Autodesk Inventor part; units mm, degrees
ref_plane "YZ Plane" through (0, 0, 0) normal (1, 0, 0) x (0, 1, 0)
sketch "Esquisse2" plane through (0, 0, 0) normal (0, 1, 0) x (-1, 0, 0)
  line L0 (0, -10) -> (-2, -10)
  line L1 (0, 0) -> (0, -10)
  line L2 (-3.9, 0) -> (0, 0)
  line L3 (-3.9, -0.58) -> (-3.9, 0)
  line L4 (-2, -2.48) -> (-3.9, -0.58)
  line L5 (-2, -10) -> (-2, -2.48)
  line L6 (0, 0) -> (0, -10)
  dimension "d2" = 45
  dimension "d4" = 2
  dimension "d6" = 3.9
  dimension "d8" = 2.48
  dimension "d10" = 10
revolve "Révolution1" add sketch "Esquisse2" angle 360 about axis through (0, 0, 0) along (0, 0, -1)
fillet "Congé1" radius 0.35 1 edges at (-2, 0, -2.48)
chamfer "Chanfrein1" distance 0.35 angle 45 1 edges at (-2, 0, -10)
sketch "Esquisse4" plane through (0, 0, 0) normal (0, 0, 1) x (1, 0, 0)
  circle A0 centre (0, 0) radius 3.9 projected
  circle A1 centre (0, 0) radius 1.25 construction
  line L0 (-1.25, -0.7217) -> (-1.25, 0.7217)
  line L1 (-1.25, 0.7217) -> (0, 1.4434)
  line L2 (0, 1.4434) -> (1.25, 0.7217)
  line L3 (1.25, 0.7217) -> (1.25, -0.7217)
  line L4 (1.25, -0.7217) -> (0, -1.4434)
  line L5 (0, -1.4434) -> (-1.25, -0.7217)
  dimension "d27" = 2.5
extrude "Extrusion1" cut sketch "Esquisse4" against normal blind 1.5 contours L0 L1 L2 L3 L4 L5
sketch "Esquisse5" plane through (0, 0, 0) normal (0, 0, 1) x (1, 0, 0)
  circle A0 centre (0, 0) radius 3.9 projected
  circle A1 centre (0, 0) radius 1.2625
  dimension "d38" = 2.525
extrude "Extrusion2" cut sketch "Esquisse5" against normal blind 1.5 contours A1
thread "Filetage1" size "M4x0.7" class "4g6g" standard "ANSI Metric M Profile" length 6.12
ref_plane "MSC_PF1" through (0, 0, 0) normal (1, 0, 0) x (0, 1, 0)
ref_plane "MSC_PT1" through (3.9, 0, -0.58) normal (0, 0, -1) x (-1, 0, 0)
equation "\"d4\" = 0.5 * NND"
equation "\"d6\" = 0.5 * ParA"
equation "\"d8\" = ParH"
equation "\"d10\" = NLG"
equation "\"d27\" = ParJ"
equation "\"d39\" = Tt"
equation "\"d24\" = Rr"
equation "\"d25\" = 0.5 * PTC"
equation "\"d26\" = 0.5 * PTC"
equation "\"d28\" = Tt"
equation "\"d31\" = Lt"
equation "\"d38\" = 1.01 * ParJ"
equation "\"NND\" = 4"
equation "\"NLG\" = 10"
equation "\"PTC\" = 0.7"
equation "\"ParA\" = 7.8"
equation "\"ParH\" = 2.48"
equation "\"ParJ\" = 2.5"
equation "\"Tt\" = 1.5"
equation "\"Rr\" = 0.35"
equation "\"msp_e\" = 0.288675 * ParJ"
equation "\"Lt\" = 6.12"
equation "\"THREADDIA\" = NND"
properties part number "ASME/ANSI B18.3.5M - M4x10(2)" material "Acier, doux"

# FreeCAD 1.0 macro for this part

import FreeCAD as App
import Part
import Sketcher
Q = App.Units.Quantity


def edges_at(feature, points):
    """Names of the edges that pass closest to the given points."""
    edges = feature.Shape.Edges
    near = lambda p: min(range(len(edges)), key=lambda i: edges[i].distToShape(Part.Vertex(*p))[0])
    return sorted({f"Edge{near(p) + 1}" for p in points})


def add_polygon(sketch, points):
    """Adds a closed chain of lines whose ends are joined by coincident constraints."""
    first, n = sketch.GeometryCount, len(points)
    for a, b in zip(points, points[1:] + points[:1]):
        sketch.addGeometry(Part.LineSegment(App.Vector(*a, 0), App.Vector(*b, 0)), False)
    for i in range(n):
        sketch.addConstraint(Sketcher.Constraint("Coincident", first + i, 2, first + (i + 1) % n, 1))

doc = App.newDocument("Part")
body = doc.addObject("PartDesign::Body", "Body")

# Sketch on XZ plane
sketch1 = body.newObject("Sketcher::SketchObject", "Sketch")
sketch1.AttachmentSupport = (doc.getObject("XZ_Plane"), [""])
sketch1.MapMode = "FlatFace"
add_polygon(sketch1, [(2, -10), (0, -10), (0, 0), (3.9, 0), (3.9, -0.6), (2, -2.5)])  # lines 0-5
sketch1.addConstraint(Sketcher.Constraint("Horizontal", 0))
sketch1.addConstraint(Sketcher.Constraint("Vertical", 1))
sketch1.addConstraint(Sketcher.Constraint("Horizontal", 2))
sketch1.addConstraint(Sketcher.Constraint("Vertical", 3))
sketch1.addConstraint(Sketcher.Constraint("Vertical", 5))
sketch1.addConstraint(Sketcher.Constraint("Coincident", 1, 2, -1, 1))
sketch1.addConstraint(Sketcher.Constraint("DistanceX", 0, 2, 0, 1, 2.0))
sketch1.addConstraint(Sketcher.Constraint("DistanceY", 1, 1, 1, 2, 10.0))
sketch1.addConstraint(Sketcher.Constraint("DistanceX", 2, 1, 2, 2, 3.9))
sketch1.addConstraint(Sketcher.Constraint("DistanceY", 4, 2, -1, 1, 2.48))
sketch1.addConstraint(Sketcher.Constraint("Angle", 4, Q("-135 deg")))
revolution = body.newObject("PartDesign::Revolution", "Revolution")
revolution.Profile = sketch1
revolution.ReferenceAxis = (sketch1, ["V_Axis"])
revolution.Angle = 360
doc.recompute()

fillet = body.newObject("PartDesign::Fillet", "Fillet")
fillet.Base = (revolution, edges_at(revolution, [(-2, 0, -2.48)]))
fillet.Radius = 0.35
doc.recompute()

chamfer = body.newObject("PartDesign::Chamfer", "Chamfer")
chamfer.Base = (fillet, edges_at(fillet, [(-2, 0, -10)]))
chamfer.Size = 0.35

# Sketch on XY plane
sketch2 = body.newObject("Sketcher::SketchObject", "Sketch001")
sketch2.AttachmentSupport = (doc.getObject("XY_Plane"), [""])
sketch2.MapMode = "FlatFace"
add_polygon(sketch2, [(-1.2, 0.7), (-1.2, -0.7), (0, -1.4), (1.2, -0.7), (1.2, 0.7), (0, 1.4)])  # lines 0-5
sketch2.addConstraint(Sketcher.Constraint("Vertical", 0))
sketch2.addConstraint(Sketcher.Constraint("Vertical", 3))
sketch2.addConstraint(Sketcher.Constraint("Symmetric", 0, 2, 3, 2, -1, 1))
sketch2.addConstraint(Sketcher.Constraint("Symmetric", 1, 2, 4, 2, -1, 1))
sketch2.addConstraint(Sketcher.Constraint("PointOnObject", 1, 2, -2))
sketch2.addConstraint(Sketcher.Constraint("Parallel", 2, 5))
sketch2.addConstraint(Sketcher.Constraint("Horizontal", 0, 2, 2, 2))
sketch2.addConstraint(Sketcher.Constraint("DistanceX", 0, 2, 2, 2, 2.5))
sketch2.addConstraint(Sketcher.Constraint("Angle", 1, Q("-30.0004 deg")))
sketch2.addConstraint(Sketcher.Constraint("DistanceY", 0, 2, 0, 1, 1.4434))
pocket1 = body.newObject("PartDesign::Pocket", "Pocket")
pocket1.Profile = sketch2
pocket1.Length = 1.5

# Sketch on XY plane
sketch3 = body.newObject("Sketcher::SketchObject", "Sketch002")
sketch3.AttachmentSupport = (doc.getObject("XY_Plane"), [""])
sketch3.MapMode = "FlatFace"
sketch3.addGeometry(Part.Circle(App.Vector(0, 0, 0), App.Vector(0, 0, 1), 1.3), False)
sketch3.addConstraint(Sketcher.Constraint("Coincident", 0, 3, -1, 1))
sketch3.addConstraint(Sketcher.Constraint("Diameter", 0, 2.525))
pocket2 = body.newObject("PartDesign::Pocket", "Pocket001")
pocket2.Profile = sketch3
pocket2.Length = 1.5

doc.recompute()
